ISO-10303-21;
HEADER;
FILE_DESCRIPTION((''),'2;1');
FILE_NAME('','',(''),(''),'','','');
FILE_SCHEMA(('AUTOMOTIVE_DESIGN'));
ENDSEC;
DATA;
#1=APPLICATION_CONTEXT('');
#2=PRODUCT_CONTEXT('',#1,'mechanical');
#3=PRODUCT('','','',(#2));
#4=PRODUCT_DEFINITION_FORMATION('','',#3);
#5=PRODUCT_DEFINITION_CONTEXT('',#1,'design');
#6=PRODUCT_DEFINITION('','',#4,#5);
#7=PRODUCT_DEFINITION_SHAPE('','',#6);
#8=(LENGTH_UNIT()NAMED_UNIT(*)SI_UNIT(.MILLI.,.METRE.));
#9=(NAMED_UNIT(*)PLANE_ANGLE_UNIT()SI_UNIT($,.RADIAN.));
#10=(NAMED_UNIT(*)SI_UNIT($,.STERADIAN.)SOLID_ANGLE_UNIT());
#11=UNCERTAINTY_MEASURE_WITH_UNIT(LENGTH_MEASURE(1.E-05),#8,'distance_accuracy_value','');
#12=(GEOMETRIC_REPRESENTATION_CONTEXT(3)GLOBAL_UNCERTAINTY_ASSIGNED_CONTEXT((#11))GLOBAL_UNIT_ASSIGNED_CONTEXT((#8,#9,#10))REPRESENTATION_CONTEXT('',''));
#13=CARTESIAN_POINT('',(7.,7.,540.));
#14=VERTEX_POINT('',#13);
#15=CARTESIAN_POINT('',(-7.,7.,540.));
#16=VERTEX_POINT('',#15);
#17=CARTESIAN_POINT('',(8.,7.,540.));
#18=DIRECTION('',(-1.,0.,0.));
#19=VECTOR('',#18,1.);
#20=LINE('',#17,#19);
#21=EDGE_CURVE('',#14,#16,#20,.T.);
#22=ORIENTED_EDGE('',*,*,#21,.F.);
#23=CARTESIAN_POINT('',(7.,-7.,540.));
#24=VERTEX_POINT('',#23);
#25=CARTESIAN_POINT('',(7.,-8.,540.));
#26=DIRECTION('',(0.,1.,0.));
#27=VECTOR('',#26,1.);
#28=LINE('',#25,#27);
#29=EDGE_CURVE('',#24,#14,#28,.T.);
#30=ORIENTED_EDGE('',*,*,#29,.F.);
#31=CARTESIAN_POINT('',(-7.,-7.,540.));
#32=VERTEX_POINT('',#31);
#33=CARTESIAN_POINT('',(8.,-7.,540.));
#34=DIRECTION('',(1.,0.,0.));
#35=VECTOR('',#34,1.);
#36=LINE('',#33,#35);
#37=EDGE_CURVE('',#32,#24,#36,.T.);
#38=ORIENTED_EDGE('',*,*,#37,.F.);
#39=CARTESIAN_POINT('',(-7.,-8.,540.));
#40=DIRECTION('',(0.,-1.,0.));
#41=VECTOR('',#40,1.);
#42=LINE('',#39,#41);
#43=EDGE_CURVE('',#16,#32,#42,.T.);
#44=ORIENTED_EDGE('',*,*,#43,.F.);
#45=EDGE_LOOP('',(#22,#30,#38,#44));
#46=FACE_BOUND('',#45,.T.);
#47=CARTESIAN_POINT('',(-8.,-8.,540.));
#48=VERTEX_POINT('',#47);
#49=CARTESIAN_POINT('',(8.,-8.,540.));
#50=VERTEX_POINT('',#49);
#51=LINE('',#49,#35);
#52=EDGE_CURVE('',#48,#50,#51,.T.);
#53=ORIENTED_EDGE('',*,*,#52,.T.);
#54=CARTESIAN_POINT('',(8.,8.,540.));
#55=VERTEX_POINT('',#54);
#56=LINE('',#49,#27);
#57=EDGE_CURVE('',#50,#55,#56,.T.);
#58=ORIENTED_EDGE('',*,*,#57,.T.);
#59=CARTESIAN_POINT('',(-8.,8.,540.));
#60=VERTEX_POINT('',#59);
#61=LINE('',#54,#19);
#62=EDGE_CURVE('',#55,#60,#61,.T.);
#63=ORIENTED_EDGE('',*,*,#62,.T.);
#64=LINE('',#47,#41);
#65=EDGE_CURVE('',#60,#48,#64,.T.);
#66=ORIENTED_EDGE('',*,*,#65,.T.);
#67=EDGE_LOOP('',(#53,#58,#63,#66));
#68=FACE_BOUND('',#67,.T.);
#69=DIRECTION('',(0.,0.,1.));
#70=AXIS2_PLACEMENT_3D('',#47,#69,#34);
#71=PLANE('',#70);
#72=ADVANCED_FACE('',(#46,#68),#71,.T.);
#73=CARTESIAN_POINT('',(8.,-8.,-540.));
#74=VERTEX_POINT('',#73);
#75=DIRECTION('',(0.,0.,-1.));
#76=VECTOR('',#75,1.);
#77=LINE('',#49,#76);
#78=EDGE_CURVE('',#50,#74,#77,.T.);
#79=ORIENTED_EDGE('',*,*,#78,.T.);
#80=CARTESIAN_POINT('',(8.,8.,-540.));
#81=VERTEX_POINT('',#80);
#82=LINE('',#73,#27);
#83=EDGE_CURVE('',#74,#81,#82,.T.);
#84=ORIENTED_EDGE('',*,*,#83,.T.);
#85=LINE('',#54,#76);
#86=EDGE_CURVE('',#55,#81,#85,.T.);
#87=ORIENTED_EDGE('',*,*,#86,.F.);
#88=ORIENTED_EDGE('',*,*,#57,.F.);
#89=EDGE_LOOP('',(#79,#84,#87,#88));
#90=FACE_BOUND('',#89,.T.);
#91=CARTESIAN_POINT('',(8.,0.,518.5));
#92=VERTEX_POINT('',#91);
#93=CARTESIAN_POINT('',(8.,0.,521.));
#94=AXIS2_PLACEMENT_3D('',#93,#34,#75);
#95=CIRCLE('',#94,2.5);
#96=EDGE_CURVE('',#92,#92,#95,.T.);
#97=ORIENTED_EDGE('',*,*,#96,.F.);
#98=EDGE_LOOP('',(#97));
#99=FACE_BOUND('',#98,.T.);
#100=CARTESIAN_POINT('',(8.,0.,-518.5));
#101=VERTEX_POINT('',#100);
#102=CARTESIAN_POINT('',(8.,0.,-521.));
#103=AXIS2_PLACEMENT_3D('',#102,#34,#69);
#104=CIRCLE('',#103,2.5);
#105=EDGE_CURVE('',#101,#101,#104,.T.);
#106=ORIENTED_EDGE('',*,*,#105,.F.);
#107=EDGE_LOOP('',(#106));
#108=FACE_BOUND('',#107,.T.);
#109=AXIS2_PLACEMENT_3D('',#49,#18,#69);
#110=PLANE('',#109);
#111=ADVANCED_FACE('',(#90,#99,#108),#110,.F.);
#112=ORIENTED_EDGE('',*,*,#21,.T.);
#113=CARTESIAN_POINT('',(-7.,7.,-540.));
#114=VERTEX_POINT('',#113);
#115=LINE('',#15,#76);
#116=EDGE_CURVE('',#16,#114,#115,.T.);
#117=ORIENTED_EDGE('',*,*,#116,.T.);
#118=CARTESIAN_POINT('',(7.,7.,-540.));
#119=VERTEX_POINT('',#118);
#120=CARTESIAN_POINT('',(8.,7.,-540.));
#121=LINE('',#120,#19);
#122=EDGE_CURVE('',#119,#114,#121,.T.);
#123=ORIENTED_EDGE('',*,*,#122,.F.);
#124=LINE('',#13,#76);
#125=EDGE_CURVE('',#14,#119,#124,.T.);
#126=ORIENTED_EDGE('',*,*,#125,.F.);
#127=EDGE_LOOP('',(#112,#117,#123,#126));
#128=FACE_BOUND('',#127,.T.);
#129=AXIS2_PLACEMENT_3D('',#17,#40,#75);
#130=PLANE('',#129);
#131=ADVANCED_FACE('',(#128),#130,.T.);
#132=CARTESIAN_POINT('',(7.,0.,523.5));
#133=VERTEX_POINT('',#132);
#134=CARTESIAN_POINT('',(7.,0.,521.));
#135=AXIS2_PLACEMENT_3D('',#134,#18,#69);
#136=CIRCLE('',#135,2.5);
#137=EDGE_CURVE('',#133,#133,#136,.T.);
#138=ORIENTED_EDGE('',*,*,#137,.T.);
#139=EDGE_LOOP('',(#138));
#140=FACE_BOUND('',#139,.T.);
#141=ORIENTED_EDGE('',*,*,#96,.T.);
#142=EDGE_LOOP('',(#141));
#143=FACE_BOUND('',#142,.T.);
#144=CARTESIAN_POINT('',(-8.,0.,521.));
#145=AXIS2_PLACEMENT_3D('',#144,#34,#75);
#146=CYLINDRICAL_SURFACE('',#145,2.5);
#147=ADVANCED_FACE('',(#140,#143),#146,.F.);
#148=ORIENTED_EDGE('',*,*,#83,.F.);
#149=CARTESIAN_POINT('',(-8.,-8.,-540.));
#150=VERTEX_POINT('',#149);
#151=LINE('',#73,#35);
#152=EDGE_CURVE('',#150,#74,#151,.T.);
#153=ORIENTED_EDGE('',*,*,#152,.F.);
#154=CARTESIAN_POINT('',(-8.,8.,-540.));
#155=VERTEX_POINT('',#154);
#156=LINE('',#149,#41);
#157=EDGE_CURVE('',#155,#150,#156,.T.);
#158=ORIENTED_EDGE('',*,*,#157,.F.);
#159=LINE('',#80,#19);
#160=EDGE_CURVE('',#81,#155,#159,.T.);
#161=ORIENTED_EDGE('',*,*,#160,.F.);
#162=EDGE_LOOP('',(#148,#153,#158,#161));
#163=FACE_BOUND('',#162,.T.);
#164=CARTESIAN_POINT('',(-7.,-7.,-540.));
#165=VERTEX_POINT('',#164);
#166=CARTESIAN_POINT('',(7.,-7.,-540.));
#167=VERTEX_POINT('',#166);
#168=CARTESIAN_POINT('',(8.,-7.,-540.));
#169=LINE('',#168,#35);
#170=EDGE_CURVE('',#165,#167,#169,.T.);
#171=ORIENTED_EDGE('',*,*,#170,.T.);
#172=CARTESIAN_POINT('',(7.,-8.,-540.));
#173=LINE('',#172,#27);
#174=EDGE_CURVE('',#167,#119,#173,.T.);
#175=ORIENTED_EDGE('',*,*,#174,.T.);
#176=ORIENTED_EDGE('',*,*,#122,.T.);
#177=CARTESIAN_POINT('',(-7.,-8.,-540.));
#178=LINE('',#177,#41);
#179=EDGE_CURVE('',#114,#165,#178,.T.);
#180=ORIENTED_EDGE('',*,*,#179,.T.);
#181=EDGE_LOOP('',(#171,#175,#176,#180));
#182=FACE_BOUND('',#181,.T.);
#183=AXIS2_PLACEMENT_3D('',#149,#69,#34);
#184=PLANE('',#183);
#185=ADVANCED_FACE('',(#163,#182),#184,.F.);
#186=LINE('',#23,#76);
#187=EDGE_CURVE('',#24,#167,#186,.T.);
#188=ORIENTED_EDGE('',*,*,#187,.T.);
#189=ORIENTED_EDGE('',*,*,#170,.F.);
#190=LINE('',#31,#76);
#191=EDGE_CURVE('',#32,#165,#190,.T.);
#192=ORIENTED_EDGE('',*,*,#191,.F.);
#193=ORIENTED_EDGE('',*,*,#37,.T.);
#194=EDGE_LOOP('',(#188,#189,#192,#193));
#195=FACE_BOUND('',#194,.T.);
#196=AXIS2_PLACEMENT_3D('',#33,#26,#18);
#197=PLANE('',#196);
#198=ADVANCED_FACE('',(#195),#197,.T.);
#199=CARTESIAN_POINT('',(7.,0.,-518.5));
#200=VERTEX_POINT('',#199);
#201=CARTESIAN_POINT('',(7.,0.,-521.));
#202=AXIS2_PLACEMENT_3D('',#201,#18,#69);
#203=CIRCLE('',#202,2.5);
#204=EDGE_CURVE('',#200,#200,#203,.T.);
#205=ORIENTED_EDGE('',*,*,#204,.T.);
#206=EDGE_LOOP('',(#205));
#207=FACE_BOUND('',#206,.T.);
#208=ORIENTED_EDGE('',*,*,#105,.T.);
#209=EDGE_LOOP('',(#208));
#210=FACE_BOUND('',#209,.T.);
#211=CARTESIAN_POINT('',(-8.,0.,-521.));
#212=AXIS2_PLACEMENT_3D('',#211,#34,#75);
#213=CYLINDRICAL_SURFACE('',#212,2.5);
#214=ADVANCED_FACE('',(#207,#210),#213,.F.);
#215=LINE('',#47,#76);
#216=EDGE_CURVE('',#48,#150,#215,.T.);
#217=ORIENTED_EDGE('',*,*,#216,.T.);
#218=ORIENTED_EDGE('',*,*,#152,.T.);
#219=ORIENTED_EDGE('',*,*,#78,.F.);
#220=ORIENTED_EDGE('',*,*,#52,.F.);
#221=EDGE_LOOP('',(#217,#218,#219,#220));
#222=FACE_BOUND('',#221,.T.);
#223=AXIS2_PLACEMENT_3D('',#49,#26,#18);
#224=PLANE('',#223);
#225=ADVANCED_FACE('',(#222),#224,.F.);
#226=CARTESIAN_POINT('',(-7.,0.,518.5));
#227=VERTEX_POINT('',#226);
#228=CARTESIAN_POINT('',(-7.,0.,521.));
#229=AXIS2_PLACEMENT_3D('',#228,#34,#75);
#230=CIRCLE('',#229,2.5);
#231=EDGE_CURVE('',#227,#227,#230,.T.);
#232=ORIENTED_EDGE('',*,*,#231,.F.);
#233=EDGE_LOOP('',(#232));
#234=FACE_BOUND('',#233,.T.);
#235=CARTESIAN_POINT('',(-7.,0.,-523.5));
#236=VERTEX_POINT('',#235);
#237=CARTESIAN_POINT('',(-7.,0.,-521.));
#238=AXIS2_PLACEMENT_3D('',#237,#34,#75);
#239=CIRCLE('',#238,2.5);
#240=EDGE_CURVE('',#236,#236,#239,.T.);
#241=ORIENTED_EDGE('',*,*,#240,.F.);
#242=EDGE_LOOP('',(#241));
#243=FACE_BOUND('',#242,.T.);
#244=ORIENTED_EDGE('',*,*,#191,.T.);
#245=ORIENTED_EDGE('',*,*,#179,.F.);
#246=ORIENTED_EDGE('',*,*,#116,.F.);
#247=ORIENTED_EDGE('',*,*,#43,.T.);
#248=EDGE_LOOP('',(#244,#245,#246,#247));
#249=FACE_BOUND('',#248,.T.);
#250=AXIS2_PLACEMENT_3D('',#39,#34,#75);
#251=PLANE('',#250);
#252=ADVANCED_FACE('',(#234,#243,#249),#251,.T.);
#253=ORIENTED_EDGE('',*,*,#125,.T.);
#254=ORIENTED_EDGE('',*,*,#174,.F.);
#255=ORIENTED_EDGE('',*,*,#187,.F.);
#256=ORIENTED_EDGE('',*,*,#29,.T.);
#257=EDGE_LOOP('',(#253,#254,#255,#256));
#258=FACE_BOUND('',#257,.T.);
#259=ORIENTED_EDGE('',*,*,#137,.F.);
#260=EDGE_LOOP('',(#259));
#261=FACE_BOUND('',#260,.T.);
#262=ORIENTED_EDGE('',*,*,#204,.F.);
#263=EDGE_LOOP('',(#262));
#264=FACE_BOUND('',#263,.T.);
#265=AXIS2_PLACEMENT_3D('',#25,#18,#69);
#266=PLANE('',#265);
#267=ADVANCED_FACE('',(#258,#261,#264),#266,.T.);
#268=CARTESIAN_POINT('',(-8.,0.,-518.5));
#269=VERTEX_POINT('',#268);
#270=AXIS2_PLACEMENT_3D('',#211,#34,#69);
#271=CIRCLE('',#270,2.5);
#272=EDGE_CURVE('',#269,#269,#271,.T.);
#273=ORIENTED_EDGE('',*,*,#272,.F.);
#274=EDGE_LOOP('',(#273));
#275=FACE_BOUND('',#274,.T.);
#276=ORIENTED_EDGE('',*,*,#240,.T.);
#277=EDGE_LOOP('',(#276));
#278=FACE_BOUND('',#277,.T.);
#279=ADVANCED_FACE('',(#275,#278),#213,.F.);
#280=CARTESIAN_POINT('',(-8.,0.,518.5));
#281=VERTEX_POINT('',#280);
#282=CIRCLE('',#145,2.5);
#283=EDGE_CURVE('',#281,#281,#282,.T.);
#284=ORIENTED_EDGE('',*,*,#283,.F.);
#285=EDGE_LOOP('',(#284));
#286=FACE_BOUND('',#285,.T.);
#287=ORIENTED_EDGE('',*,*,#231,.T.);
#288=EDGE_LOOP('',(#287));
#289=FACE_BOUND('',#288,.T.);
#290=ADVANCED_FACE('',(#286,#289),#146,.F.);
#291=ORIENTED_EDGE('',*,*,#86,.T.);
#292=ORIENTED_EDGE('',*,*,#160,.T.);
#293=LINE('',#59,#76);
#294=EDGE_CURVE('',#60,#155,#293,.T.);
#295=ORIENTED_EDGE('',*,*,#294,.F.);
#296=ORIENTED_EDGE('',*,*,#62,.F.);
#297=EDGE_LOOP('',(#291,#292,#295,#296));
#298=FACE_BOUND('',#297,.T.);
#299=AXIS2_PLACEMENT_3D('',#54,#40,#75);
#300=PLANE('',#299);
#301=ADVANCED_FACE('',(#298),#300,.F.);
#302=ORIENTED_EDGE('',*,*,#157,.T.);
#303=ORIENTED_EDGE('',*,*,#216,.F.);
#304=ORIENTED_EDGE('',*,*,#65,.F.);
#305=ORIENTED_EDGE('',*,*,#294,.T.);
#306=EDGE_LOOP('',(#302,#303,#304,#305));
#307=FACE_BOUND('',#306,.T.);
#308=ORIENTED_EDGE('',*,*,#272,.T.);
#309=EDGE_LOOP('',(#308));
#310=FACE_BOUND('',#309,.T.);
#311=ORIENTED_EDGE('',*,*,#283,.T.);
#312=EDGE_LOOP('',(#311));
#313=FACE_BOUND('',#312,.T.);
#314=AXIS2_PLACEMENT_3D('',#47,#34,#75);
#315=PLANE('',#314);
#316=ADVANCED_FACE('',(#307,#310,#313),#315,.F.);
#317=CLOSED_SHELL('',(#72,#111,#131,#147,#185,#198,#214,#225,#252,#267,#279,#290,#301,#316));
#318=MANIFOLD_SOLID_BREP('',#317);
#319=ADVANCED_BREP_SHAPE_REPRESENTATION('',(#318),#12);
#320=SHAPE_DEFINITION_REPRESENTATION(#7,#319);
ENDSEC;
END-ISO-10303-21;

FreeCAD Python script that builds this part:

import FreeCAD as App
import Part
import Sketcher
from FreeCAD import Vector

doc = App.newDocument("Part")
body = doc.addObject("PartDesign::Body", "Body")

# Sketch on XY plane
sketch1 = body.newObject("Sketcher::SketchObject", "Sketch")
sketch1.AttachmentSupport = (doc.getObject("XY_Plane"), [""])
sketch1.MapMode = "FlatFace"
sketch1.addGeometry(Part.LineSegment(Vector(-8, 8, 0), Vector(-8, -8, 0)), False)
sketch1.addGeometry(Part.LineSegment(Vector(-8, -8, 0), Vector(8, -8, 0)), False)
sketch1.addGeometry(Part.LineSegment(Vector(8, -8, 0), Vector(8, 8, 0)), False)
sketch1.addGeometry(Part.LineSegment(Vector(8, 8, 0), Vector(-8, 8, 0)), False)
sketch1.addGeometry(Part.LineSegment(Vector(7, -7, 0), Vector(-7, -7, 0)), False)
sketch1.addGeometry(Part.LineSegment(Vector(-7, -7, 0), Vector(-7, 7, 0)), False)
sketch1.addGeometry(Part.LineSegment(Vector(-7, 7, 0), Vector(7, 7, 0)), False)
sketch1.addGeometry(Part.LineSegment(Vector(7, 7, 0), Vector(7, -7, 0)), False)
sketch1.addConstraint(Sketcher.Constraint("Coincident", 0, 2, 1, 1))
sketch1.addConstraint(Sketcher.Constraint("Coincident", 1, 2, 2, 1))
sketch1.addConstraint(Sketcher.Constraint("Coincident", 2, 2, 3, 1))
sketch1.addConstraint(Sketcher.Constraint("Coincident", 3, 2, 0, 1))
sketch1.addConstraint(Sketcher.Constraint("Coincident", 4, 2, 5, 1))
sketch1.addConstraint(Sketcher.Constraint("Coincident", 5, 2, 6, 1))
sketch1.addConstraint(Sketcher.Constraint("Coincident", 6, 2, 7, 1))
sketch1.addConstraint(Sketcher.Constraint("Coincident", 7, 2, 4, 1))
sketch1.addConstraint(Sketcher.Constraint("Vertical", 0))
sketch1.addConstraint(Sketcher.Constraint("Horizontal", 1))
sketch1.addConstraint(Sketcher.Constraint("Vertical", 2))
sketch1.addConstraint(Sketcher.Constraint("Horizontal", 3))
sketch1.addConstraint(Sketcher.Constraint("Horizontal", 4))
sketch1.addConstraint(Sketcher.Constraint("Vertical", 5))
sketch1.addConstraint(Sketcher.Constraint("Horizontal", 6))
sketch1.addConstraint(Sketcher.Constraint("Vertical", 7))
sketch1.addConstraint(Sketcher.Constraint("Symmetric", 0, 2, 2, 2, -1, 1))
sketch1.addConstraint(Sketcher.Constraint("Symmetric", 4, 2, 6, 2, -1, 1))
sketch1.addConstraint(Sketcher.Constraint("Equal", 3, 0))
sketch1.addConstraint(Sketcher.Constraint("Equal", 6, 5))
sketch1.addConstraint(Sketcher.Constraint("DistanceX", 1, 1, 1, 2, 16.0))
sketch1.addConstraint(Sketcher.Constraint("DistanceX", 4, 2, 4, 1, 14.0))
pad1 = body.newObject("PartDesign::Pad", "Pad")
pad1.Profile = sketch1
pad1.Length = 1080
pad1.Midplane = True

# Sketch on YZ plane
sketch2 = body.newObject("Sketcher::SketchObject", "Sketch001")
sketch2.AttachmentSupport = (doc.getObject("YZ_Plane"), [""])
sketch2.MapMode = "FlatFace"
sketch2.AttachmentOffset = App.Placement(Vector(0, 0, 8), App.Rotation())
sketch2.addGeometry(Part.Circle(Vector(0, 521, 0), Vector(0, 0, 1), 2.5), False)
sketch2.addGeometry(Part.Circle(Vector(0, -521, 0), Vector(0, 0, 1), 2.5), False)
sketch2.addConstraint(Sketcher.Constraint("Equal", 0, 1))
sketch2.addConstraint(Sketcher.Constraint("Symmetric", 0, 3, 1, 3, -1, 1))
sketch2.addConstraint(Sketcher.Constraint("PointOnObject", 0, 3, -2))
sketch2.addConstraint(Sketcher.Constraint("Diameter", 0, 5.0))
sketch2.addConstraint(Sketcher.Constraint("DistanceY", -1, 1, 0, 3, 521.0))
pocket1 = body.newObject("PartDesign::Pocket", "Pocket")
pocket1.Profile = sketch2
pocket1.Type = "ThroughAll"

doc.recompute()
